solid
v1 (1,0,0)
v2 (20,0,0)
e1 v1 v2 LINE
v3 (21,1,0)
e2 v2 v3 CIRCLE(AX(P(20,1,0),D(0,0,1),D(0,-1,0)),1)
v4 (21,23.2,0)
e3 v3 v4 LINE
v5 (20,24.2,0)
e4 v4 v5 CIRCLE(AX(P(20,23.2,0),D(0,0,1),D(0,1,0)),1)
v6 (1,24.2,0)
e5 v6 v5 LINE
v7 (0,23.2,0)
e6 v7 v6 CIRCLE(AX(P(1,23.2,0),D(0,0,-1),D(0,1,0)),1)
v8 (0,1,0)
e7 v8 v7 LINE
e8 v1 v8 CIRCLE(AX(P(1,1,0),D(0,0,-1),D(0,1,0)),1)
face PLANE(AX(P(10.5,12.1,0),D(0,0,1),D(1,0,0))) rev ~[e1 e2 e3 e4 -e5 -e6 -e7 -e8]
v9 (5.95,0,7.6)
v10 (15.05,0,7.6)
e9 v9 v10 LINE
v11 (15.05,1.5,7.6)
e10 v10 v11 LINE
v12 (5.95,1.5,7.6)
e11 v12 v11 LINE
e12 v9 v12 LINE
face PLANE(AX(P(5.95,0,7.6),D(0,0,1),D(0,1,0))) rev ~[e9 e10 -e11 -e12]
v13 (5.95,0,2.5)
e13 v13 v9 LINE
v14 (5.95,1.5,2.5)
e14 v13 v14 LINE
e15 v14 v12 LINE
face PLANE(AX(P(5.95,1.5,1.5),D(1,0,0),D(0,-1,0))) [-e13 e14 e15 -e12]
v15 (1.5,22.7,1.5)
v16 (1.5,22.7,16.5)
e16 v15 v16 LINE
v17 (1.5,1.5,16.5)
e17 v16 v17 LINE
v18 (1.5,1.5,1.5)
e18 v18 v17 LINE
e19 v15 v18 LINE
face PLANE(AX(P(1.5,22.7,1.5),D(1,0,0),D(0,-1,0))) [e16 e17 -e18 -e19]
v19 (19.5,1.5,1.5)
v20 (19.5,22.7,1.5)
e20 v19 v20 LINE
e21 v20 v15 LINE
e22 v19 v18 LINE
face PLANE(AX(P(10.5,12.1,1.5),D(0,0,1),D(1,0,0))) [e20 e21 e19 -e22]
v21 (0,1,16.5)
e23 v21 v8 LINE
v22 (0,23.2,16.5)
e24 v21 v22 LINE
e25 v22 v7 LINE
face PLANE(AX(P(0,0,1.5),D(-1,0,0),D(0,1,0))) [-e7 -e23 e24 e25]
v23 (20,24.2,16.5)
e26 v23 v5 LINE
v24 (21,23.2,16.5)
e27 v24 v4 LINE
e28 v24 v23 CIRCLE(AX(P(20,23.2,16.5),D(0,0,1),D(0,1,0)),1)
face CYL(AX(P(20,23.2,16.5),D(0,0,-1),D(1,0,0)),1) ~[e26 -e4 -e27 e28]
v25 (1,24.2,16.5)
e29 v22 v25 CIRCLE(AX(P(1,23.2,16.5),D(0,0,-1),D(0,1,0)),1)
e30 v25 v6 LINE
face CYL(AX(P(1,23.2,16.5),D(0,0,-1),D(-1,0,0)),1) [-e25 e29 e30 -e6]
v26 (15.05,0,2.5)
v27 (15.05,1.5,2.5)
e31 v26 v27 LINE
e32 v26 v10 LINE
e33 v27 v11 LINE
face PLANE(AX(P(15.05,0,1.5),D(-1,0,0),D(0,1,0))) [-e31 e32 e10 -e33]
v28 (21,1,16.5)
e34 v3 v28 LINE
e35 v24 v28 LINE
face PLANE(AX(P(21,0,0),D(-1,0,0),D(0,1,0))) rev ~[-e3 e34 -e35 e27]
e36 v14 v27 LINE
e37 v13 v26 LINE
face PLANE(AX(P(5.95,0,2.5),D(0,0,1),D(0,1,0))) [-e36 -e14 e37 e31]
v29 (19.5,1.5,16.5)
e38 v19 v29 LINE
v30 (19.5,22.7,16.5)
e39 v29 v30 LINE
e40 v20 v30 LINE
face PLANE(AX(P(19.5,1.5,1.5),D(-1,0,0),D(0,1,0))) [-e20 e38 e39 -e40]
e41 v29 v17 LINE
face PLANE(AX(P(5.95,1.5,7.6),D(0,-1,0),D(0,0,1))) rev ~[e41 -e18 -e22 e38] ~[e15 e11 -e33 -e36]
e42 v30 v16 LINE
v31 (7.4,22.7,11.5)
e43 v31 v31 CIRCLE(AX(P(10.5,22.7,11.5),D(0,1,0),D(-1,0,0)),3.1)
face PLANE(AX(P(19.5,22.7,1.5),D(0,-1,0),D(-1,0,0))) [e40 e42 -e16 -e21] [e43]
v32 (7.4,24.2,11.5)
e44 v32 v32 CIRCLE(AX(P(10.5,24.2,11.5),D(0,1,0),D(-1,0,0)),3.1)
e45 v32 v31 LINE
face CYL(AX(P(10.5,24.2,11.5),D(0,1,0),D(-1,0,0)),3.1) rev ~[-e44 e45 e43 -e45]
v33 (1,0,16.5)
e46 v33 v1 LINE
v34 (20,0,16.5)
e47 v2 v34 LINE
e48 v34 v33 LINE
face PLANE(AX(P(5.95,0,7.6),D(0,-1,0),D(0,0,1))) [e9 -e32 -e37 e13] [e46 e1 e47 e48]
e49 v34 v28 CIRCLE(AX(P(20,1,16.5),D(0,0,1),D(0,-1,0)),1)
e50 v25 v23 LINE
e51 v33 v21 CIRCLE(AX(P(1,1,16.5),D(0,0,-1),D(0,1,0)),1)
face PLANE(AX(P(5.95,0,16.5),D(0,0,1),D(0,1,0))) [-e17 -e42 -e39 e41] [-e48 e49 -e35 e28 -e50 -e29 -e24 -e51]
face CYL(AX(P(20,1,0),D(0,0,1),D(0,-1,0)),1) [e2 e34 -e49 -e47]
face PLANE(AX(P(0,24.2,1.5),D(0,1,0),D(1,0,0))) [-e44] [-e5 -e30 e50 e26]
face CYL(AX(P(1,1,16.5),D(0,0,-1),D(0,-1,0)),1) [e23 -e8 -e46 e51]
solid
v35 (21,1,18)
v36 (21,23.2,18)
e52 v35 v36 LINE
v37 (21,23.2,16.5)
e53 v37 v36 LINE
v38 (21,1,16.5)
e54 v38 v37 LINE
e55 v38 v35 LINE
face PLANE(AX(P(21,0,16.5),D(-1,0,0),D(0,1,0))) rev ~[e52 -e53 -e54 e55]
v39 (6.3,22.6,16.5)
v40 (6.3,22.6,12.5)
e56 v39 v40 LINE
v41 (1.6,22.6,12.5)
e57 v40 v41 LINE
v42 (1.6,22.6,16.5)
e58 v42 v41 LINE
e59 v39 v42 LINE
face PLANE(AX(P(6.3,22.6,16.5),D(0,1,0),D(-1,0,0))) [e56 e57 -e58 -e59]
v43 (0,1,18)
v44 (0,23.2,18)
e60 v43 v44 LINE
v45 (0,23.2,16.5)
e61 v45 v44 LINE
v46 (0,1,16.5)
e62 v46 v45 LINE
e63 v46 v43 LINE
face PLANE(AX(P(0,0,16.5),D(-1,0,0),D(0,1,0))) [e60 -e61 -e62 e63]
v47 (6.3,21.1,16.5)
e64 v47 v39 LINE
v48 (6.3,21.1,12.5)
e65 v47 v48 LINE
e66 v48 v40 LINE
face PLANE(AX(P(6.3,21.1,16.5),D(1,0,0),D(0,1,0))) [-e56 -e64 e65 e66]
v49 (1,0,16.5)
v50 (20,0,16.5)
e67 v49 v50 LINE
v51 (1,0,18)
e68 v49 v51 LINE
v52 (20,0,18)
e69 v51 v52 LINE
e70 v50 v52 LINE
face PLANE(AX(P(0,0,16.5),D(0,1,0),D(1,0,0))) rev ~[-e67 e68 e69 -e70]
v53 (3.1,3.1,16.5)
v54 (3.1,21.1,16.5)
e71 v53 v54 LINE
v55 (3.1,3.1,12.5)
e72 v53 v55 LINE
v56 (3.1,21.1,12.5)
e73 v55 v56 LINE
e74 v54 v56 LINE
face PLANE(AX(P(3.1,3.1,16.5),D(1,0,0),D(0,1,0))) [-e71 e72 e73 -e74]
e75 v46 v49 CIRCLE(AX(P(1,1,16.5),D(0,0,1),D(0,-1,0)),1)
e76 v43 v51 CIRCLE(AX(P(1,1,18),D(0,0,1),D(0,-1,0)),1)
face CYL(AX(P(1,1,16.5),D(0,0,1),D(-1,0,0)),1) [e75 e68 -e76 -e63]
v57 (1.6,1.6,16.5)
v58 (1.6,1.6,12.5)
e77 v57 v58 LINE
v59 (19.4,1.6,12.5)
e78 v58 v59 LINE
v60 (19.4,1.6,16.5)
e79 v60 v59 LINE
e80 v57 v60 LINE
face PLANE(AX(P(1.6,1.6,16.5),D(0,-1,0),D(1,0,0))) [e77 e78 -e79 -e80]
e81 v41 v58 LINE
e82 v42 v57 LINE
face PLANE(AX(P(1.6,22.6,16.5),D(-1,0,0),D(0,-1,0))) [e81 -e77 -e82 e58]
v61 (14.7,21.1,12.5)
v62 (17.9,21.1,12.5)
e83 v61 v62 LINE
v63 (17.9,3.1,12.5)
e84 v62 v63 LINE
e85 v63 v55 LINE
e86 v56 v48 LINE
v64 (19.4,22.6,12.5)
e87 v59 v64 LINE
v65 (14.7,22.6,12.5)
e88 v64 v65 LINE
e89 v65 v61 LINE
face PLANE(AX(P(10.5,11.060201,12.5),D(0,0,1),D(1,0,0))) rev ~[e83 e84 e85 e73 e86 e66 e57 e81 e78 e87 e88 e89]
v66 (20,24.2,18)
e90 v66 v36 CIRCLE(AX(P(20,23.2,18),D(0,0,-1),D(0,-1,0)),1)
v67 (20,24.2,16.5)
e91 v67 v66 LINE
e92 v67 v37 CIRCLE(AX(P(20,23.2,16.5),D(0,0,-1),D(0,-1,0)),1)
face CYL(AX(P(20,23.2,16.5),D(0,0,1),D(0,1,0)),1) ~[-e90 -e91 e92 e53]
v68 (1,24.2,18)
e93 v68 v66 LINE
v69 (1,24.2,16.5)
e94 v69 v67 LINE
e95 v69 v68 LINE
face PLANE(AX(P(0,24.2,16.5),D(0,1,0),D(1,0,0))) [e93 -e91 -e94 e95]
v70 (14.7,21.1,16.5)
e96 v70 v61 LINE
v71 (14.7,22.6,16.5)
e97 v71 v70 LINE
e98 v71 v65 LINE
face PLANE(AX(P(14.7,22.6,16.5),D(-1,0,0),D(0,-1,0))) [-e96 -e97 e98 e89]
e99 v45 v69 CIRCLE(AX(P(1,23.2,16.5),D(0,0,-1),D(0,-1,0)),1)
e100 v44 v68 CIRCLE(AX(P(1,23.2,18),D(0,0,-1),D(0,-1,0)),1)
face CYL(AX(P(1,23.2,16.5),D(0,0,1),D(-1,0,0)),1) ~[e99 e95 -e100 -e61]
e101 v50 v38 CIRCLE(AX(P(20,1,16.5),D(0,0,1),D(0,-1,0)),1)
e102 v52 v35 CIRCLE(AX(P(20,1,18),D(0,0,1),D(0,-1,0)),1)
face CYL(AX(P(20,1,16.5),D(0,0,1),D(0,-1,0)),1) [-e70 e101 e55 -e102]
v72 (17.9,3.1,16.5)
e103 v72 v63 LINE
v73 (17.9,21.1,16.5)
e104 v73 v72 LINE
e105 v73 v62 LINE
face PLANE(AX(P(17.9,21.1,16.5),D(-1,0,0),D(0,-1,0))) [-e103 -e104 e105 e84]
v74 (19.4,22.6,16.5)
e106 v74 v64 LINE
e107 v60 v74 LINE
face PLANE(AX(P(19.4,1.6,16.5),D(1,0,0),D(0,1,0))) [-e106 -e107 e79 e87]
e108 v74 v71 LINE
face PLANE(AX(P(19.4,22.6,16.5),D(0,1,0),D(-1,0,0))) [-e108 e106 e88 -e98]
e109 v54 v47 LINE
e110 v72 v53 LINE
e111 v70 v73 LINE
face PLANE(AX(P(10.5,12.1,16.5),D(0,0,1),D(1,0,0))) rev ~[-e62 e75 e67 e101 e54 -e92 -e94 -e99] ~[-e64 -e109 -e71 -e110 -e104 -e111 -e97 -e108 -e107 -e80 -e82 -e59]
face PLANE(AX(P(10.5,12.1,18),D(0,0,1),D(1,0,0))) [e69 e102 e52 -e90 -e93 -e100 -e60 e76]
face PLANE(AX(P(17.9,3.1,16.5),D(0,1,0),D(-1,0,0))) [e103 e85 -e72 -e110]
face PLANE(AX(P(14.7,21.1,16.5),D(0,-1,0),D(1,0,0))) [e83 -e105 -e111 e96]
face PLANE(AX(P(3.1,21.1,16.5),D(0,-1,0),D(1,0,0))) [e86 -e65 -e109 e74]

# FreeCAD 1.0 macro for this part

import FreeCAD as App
import Part
import Sketcher
from FreeCAD import Vector


def edges_at(feature, points):
    """Names of the edges that pass closest to the given points."""
    edges = feature.Shape.Edges
    near = lambda p: min(range(len(edges)), key=lambda i: edges[i].distToShape(Part.Vertex(*p))[0])
    return sorted({f"Edge{near(p) + 1}" for p in points})

doc = App.newDocument("Part")
body = doc.addObject("PartDesign::Body", "Body")

# Sketch on XY plane
sketch1 = body.newObject("Sketcher::SketchObject", "Sketch")
sketch1.AttachmentSupport = (doc.getObject("XY_Plane"), [""])
sketch1.MapMode = "FlatFace"
sketch1.addGeometry(Part.LineSegment(Vector(0, 24, 0), Vector(0, 0, 0)), False)
sketch1.addGeometry(Part.LineSegment(Vector(0, 0, 0), Vector(21, 0, 0)), False)
sketch1.addGeometry(Part.LineSegment(Vector(21, 0, 0), Vector(21, 24, 0)), False)
sketch1.addGeometry(Part.LineSegment(Vector(21, 24, 0), Vector(0, 24, 0)), False)
sketch1.addConstraint(Sketcher.Constraint("Coincident", 0, 2, 1, 1))
sketch1.addConstraint(Sketcher.Constraint("Coincident", 1, 2, 2, 1))
sketch1.addConstraint(Sketcher.Constraint("Coincident", 2, 2, 3, 1))
sketch1.addConstraint(Sketcher.Constraint("Coincident", 3, 2, 0, 1))
sketch1.addConstraint(Sketcher.Constraint("Vertical", 0))
sketch1.addConstraint(Sketcher.Constraint("Horizontal", 1))
sketch1.addConstraint(Sketcher.Constraint("Vertical", 2))
sketch1.addConstraint(Sketcher.Constraint("Horizontal", 3))
sketch1.addConstraint(Sketcher.Constraint("Coincident", 0, 2, -1, 1))
sketch1.addConstraint(Sketcher.Constraint("DistanceX", 1, 1, 1, 2, 21.0))
sketch1.addConstraint(Sketcher.Constraint("DistanceY", 0, 2, 0, 1, 24.2))
pad1 = body.newObject("PartDesign::Pad", "Pad")
pad1.Profile = sketch1
pad1.Length = 1.5

# Sketch on XY plane
sketch2 = body.newObject("Sketcher::SketchObject", "Sketch001")
sketch2.AttachmentSupport = (doc.getObject("XY_Plane"), [""])
sketch2.MapMode = "FlatFace"
sketch2.AttachmentOffset = App.Placement(Vector(0, 0, 1.5), App.Rotation())
sketch2.addGeometry(Part.LineSegment(Vector(0, 0, 0), Vector(6, 0, 0)), False)
sketch2.addGeometry(Part.LineSegment(Vector(6, 0, 0), Vector(6, 1.5, 0)), False)
sketch2.addGeometry(Part.LineSegment(Vector(6, 1.5, 0), Vector(1.5, 1.5, 0)), False)
sketch2.addGeometry(Part.LineSegment(Vector(1.5, 1.5, 0), Vector(1.5, 22.7, 0)), False)
sketch2.addGeometry(Part.LineSegment(Vector(1.5, 22.7, 0), Vector(19.5, 22.7, 0)), False)
sketch2.addGeometry(Part.LineSegment(Vector(19.5, 22.7, 0), Vector(19.5, 1.5, 0)), False)
sketch2.addGeometry(Part.LineSegment(Vector(19.5, 1.5, 0), Vector(15.1, 1.5, 0)), False)
sketch2.addGeometry(Part.LineSegment(Vector(15.1, 1.5, 0), Vector(15.1, 0, 0)), False)
sketch2.addGeometry(Part.LineSegment(Vector(15.1, 0, 0), Vector(21, 0, 0)), False)
sketch2.addGeometry(Part.LineSegment(Vector(21, 0, 0), Vector(21, 24.2, 0)), False)
sketch2.addGeometry(Part.LineSegment(Vector(21, 24.2, 0), Vector(0, 24.2, 0)), False)
sketch2.addGeometry(Part.LineSegment(Vector(0, 24.2, 0), Vector(0, 0, 0)), False)
sketch2.addConstraint(Sketcher.Constraint("Coincident", 0, 2, 1, 1))
sketch2.addConstraint(Sketcher.Constraint("Coincident", 1, 2, 2, 1))
sketch2.addConstraint(Sketcher.Constraint("Coincident", 2, 2, 3, 1))
sketch2.addConstraint(Sketcher.Constraint("Coincident", 3, 2, 4, 1))
sketch2.addConstraint(Sketcher.Constraint("Coincident", 4, 2, 5, 1))
sketch2.addConstraint(Sketcher.Constraint("Coincident", 5, 2, 6, 1))
sketch2.addConstraint(Sketcher.Constraint("Coincident", 6, 2, 7, 1))
sketch2.addConstraint(Sketcher.Constraint("Coincident", 7, 2, 8, 1))
sketch2.addConstraint(Sketcher.Constraint("Coincident", 8, 2, 9, 1))
sketch2.addConstraint(Sketcher.Constraint("Coincident", 9, 2, 10, 1))
sketch2.addConstraint(Sketcher.Constraint("Coincident", 10, 2, 11, 1))
sketch2.addConstraint(Sketcher.Constraint("Coincident", 11, 2, 0, 1))
sketch2.addConstraint(Sketcher.Constraint("Horizontal", 0))
sketch2.addConstraint(Sketcher.Constraint("Vertical", 1))
sketch2.addConstraint(Sketcher.Constraint("Horizontal", 2))
sketch2.addConstraint(Sketcher.Constraint("Vertical", 3))
sketch2.addConstraint(Sketcher.Constraint("Horizontal", 4))
sketch2.addConstraint(Sketcher.Constraint("Vertical", 5))
sketch2.addConstraint(Sketcher.Constraint("Horizontal", 6))
sketch2.addConstraint(Sketcher.Constraint("Vertical", 7))
sketch2.addConstraint(Sketcher.Constraint("Horizontal", 8))
sketch2.addConstraint(Sketcher.Constraint("Vertical", 9))
sketch2.addConstraint(Sketcher.Constraint("Horizontal", 10))
sketch2.addConstraint(Sketcher.Constraint("Vertical", 11))
sketch2.addConstraint(Sketcher.Constraint("Coincident", 11, 2, -1, 1))
sketch2.addConstraint(Sketcher.Constraint("PointOnObject", 7, 2, -1))
sketch2.addConstraint(Sketcher.Constraint("Horizontal", 2, 2, 5, 2))
sketch2.addConstraint(Sketcher.Constraint("Equal", 2, 6))
sketch2.addConstraint(Sketcher.Constraint("Equal", 0, 8))
sketch2.addConstraint(Sketcher.Constraint("DistanceX", 4, 1, 4, 2, 18.0))
sketch2.addConstraint(Sketcher.Constraint("DistanceX", 10, 2, 10, 1, 21.0))
sketch2.addConstraint(Sketcher.Constraint("DistanceY", 1, 1, 1, 2, 1.5))
sketch2.addConstraint(Sketcher.Constraint("DistanceY", 3, 1, 3, 2, 21.2))
sketch2.addConstraint(Sketcher.Constraint("DistanceY", 9, 1, 9, 2, 24.2))
sketch2.addConstraint(Sketcher.Constraint("DistanceX", 0, 1, 0, 2, 5.95))
pad2 = body.newObject("PartDesign::Pad", "Pad001")
pad2.Profile = sketch2
pad2.Length = 15

# Sketch on YZ plane
sketch3 = body.newObject("Sketcher::SketchObject", "Sketch002")
sketch3.AttachmentSupport = (doc.getObject("YZ_Plane"), [""])
sketch3.MapMode = "FlatFace"
sketch3.AttachmentOffset = App.Placement(Vector(0, 0, 5.95), App.Rotation())
sketch3.addGeometry(Part.LineSegment(Vector(0, 16.5, 0), Vector(0, 7.6, 0)), False)
sketch3.addGeometry(Part.LineSegment(Vector(0, 7.6, 0), Vector(1.5, 7.6, 0)), False)
sketch3.addGeometry(Part.LineSegment(Vector(1.5, 7.6, 0), Vector(1.5, 16.5, 0)), False)
sketch3.addGeometry(Part.LineSegment(Vector(1.5, 16.5, 0), Vector(0, 16.5, 0)), False)
sketch3.addGeometry(Part.LineSegment(Vector(0, 2.5, 0), Vector(0, 1.5, 0)), False)
sketch3.addGeometry(Part.LineSegment(Vector(0, 1.5, 0), Vector(1.5, 1.5, 0)), False)
sketch3.addGeometry(Part.LineSegment(Vector(1.5, 1.5, 0), Vector(1.5, 2.5, 0)), False)
sketch3.addGeometry(Part.LineSegment(Vector(1.5, 2.5, 0), Vector(0, 2.5, 0)), False)
sketch3.addConstraint(Sketcher.Constraint("Coincident", 0, 2, 1, 1))
sketch3.addConstraint(Sketcher.Constraint("Coincident", 1, 2, 2, 1))
sketch3.addConstraint(Sketcher.Constraint("Coincident", 2, 2, 3, 1))
sketch3.addConstraint(Sketcher.Constraint("Coincident", 3, 2, 0, 1))
sketch3.addConstraint(Sketcher.Constraint("Coincident", 4, 2, 5, 1))
sketch3.addConstraint(Sketcher.Constraint("Coincident", 5, 2, 6, 1))
sketch3.addConstraint(Sketcher.Constraint("Coincident", 6, 2, 7, 1))
sketch3.addConstraint(Sketcher.Constraint("Coincident", 7, 2, 4, 1))
sketch3.addConstraint(Sketcher.Constraint("Vertical", 0))
sketch3.addConstraint(Sketcher.Constraint("Horizontal", 1))
sketch3.addConstraint(Sketcher.Constraint("Vertical", 2))
sketch3.addConstraint(Sketcher.Constraint("Horizontal", 3))
sketch3.addConstraint(Sketcher.Constraint("Vertical", 4))
sketch3.addConstraint(Sketcher.Constraint("Horizontal", 5))
sketch3.addConstraint(Sketcher.Constraint("Vertical", 6))
sketch3.addConstraint(Sketcher.Constraint("Horizontal", 7))
sketch3.addConstraint(Sketcher.Constraint("PointOnObject", 0, 2, -2))
sketch3.addConstraint(Sketcher.Constraint("PointOnObject", 4, 2, -2))
sketch3.addConstraint(Sketcher.Constraint("Vertical", 2, 2, 5, 2))
sketch3.addConstraint(Sketcher.Constraint("DistanceY", 4, 2, 4, 1, 1.0))
sketch3.addConstraint(Sketcher.Constraint("DistanceX", 1, 1, 1, 2, 1.5))
sketch3.addConstraint(Sketcher.Constraint("DistanceY", 0, 2, 0, 1, 8.9))
sketch3.addConstraint(Sketcher.Constraint("DistanceY", 4, 2, 3, 2, 15.0))
sketch3.addConstraint(Sketcher.Constraint("DistanceY", -1, 1, 0, 2, 7.6))
pad3 = body.newObject("PartDesign::Pad", "Pad002")
pad3.Profile = sketch3
pad3.Length = 9.1

# Sketch on XZ plane
sketch4 = body.newObject("Sketcher::SketchObject", "Sketch003")
sketch4.AttachmentSupport = (doc.getObject("XZ_Plane"), [""])
sketch4.MapMode = "FlatFace"
sketch4.AttachmentOffset = App.Placement(Vector(0, 0, -24.2), App.Rotation())
sketch4.addGeometry(Part.Circle(Vector(10.5, 11.5, 0), Vector(0, 0, 1), 3.1), False)
sketch4.addConstraint(Sketcher.Constraint("Diameter", 0, 6.2))
sketch4.addConstraint(Sketcher.Constraint("DistanceX", -1, 1, 0, 3, 10.5))
sketch4.addConstraint(Sketcher.Constraint("DistanceY", -1, 1, 0, 3, 11.5))
pocket1 = body.newObject("PartDesign::Pocket", "Pocket")
pocket1.Profile = sketch4
pocket1.Length = 1.5
pocket1.Reversed = True
doc.recompute()

fillet = body.newObject("PartDesign::Fillet", "Fillet")
fillet.Base = (pocket1, edges_at(pocket1, [
    (21, 24.2, 8.25),
    (0, 24.2, 8.25),
    (0, 0, 8.25),
    (21, 0, 8.25),
]))
fillet.Radius = 1
body2 = doc.addObject("PartDesign::Body", "Body001")

# Sketch on XY plane
sketch5 = body2.newObject("Sketcher::SketchObject", "Sketch004")
sketch5.AttachmentSupport = (doc.getObject("XY_Plane001"), [""])
sketch5.MapMode = "FlatFace"
sketch5.AttachmentOffset = App.Placement(Vector(0, 0, 16.5), App.Rotation())
sketch5.addGeometry(Part.LineSegment(Vector(6.3, 22.6, 0), Vector(1.6, 22.6, 0)), False)
sketch5.addGeometry(Part.LineSegment(Vector(1.6, 22.6, 0), Vector(1.6, 1.6, 0)), False)
sketch5.addGeometry(Part.LineSegment(Vector(1.6, 1.6, 0), Vector(19.4, 1.6, 0)), False)
sketch5.addGeometry(Part.LineSegment(Vector(19.4, 1.6, 0), Vector(19.4, 22.6, 0)), False)
sketch5.addGeometry(Part.LineSegment(Vector(19.4, 22.6, 0), Vector(14.7, 22.6, 0)), False)
sketch5.addGeometry(Part.LineSegment(Vector(14.7, 22.6, 0), Vector(14.7, 21.1, 0)), False)
sketch5.addGeometry(Part.LineSegment(Vector(14.7, 21.1, 0), Vector(17.9, 21.1, 0)), False)
sketch5.addGeometry(Part.LineSegment(Vector(17.9, 21.1, 0), Vector(17.9, 3.1, 0)), False)
sketch5.addGeometry(Part.LineSegment(Vector(17.9, 3.1, 0), Vector(3.1, 3.1, 0)), False)
sketch5.addGeometry(Part.LineSegment(Vector(3.1, 3.1, 0), Vector(3.1, 21.1, 0)), False)
sketch5.addGeometry(Part.LineSegment(Vector(3.1, 21.1, 0), Vector(6.3, 21.1, 0)), False)
sketch5.addGeometry(Part.LineSegment(Vector(6.3, 21.1, 0), Vector(6.3, 22.6, 0)), False)
sketch5.addConstraint(Sketcher.Constraint("Coincident", 0, 2, 1, 1))
sketch5.addConstraint(Sketcher.Constraint("Coincident", 1, 2, 2, 1))
sketch5.addConstraint(Sketcher.Constraint("Coincident", 2, 2, 3, 1))
sketch5.addConstraint(Sketcher.Constraint("Coincident", 3, 2, 4, 1))
sketch5.addConstraint(Sketcher.Constraint("Coincident", 4, 2, 5, 1))
sketch5.addConstraint(Sketcher.Constraint("Coincident", 5, 2, 6, 1))
sketch5.addConstraint(Sketcher.Constraint("Coincident", 6, 2, 7, 1))
sketch5.addConstraint(Sketcher.Constraint("Coincident", 7, 2, 8, 1))
sketch5.addConstraint(Sketcher.Constraint("Coincident", 8, 2, 9, 1))
sketch5.addConstraint(Sketcher.Constraint("Coincident", 9, 2, 10, 1))
sketch5.addConstraint(Sketcher.Constraint("Coincident", 10, 2, 11, 1))
sketch5.addConstraint(Sketcher.Constraint("Coincident", 11, 2, 0, 1))
sketch5.addConstraint(Sketcher.Constraint("Horizontal", 0))
sketch5.addConstraint(Sketcher.Constraint("Vertical", 1))
sketch5.addConstraint(Sketcher.Constraint("Horizontal", 2))
sketch5.addConstraint(Sketcher.Constraint("Vertical", 3))
sketch5.addConstraint(Sketcher.Constraint("Horizontal", 4))
sketch5.addConstraint(Sketcher.Constraint("Vertical", 5))
sketch5.addConstraint(Sketcher.Constraint("Horizontal", 6))
sketch5.addConstraint(Sketcher.Constraint("Vertical", 7))
sketch5.addConstraint(Sketcher.Constraint("Horizontal", 8))
sketch5.addConstraint(Sketcher.Constraint("Vertical", 9))
sketch5.addConstraint(Sketcher.Constraint("Horizontal", 10))
sketch5.addConstraint(Sketcher.Constraint("Vertical", 11))
sketch5.addConstraint(Sketcher.Constraint("Horizontal", 0, 2, 3, 2))
sketch5.addConstraint(Sketcher.Constraint("Horizontal", 6, 2, 9, 2))
sketch5.addConstraint(Sketcher.Constraint("Equal", 0, 4))
sketch5.addConstraint(Sketcher.Constraint("Equal", 6, 10))
sketch5.addConstraint(Sketcher.Constraint("DistanceY", 1, 2, 1, 1, 21.0))
sketch5.addConstraint(Sketcher.Constraint("DistanceY", 7, 2, 7, 1, 18.0))
sketch5.addConstraint(Sketcher.Constraint("DistanceX", 0, 2, 0, 1, 4.7))
sketch5.addConstraint(Sketcher.Constraint("DistanceX", 2, 1, 2, 2, 17.8))
sketch5.addConstraint(Sketcher.Constraint("DistanceX", 6, 1, 6, 2, 3.2))
sketch5.addConstraint(Sketcher.Constraint("DistanceY", 5, 2, 5, 1, 1.5))
sketch5.addConstraint(Sketcher.Constraint("DistanceX", -1, 1, 0, 2, 1.6))
sketch5.addConstraint(Sketcher.Constraint("DistanceY", -1, 1, 0, 2, 22.6))
pad4 = body2.newObject("PartDesign::Pad", "Pad003")
pad4.Profile = sketch5
pad4.Length = 4
pad4.Reversed = True

# Sketch on XY plane
sketch6 = body2.newObject("Sketcher::SketchObject", "Sketch005")
sketch6.AttachmentSupport = (doc.getObject("XY_Plane001"), [""])
sketch6.MapMode = "FlatFace"
sketch6.AttachmentOffset = App.Placement(Vector(0, 0, 16.5), App.Rotation())
sketch6.addGeometry(Part.LineSegment(Vector(0, 24, 0), Vector(0, 0, 0)), False)
sketch6.addGeometry(Part.LineSegment(Vector(0, 0, 0), Vector(21, 0, 0)), False)
sketch6.addGeometry(Part.LineSegment(Vector(21, 0, 0), Vector(21, 24, 0)), False)
sketch6.addGeometry(Part.LineSegment(Vector(21, 24, 0), Vector(0, 24, 0)), False)
sketch6.addConstraint(Sketcher.Constraint("Coincident", 0, 2, 1, 1))
sketch6.addConstraint(Sketcher.Constraint("Coincident", 1, 2, 2, 1))
sketch6.addConstraint(Sketcher.Constraint("Coincident", 2, 2, 3, 1))
sketch6.addConstraint(Sketcher.Constraint("Coincident", 3, 2, 0, 1))
sketch6.addConstraint(Sketcher.Constraint("Vertical", 0))
sketch6.addConstraint(Sketcher.Constraint("Horizontal", 1))
sketch6.addConstraint(Sketcher.Constraint("Vertical", 2))
sketch6.addConstraint(Sketcher.Constraint("Horizontal", 3))
sketch6.addConstraint(Sketcher.Constraint("Coincident", 0, 2, -1, 1))
sketch6.addConstraint(Sketcher.Constraint("DistanceX", 1, 1, 1, 2, 21.0))
sketch6.addConstraint(Sketcher.Constraint("DistanceY", 0, 2, 0, 1, 24.2))
pad5 = body2.newObject("PartDesign::Pad", "Pad004")
pad5.Profile = sketch6
pad5.Length = 1.5
doc.recompute()

fillet2 = body2.newObject("PartDesign::Fillet", "Fillet001")
fillet2.Base = (pad5, edges_at(pad5, [
    (0, 0, 17.25),
    (21, 0, 17.25),
    (0, 24.2, 17.25),
    (21, 24.2, 17.25),
]))
fillet2.Radius = 1

doc.recompute()
